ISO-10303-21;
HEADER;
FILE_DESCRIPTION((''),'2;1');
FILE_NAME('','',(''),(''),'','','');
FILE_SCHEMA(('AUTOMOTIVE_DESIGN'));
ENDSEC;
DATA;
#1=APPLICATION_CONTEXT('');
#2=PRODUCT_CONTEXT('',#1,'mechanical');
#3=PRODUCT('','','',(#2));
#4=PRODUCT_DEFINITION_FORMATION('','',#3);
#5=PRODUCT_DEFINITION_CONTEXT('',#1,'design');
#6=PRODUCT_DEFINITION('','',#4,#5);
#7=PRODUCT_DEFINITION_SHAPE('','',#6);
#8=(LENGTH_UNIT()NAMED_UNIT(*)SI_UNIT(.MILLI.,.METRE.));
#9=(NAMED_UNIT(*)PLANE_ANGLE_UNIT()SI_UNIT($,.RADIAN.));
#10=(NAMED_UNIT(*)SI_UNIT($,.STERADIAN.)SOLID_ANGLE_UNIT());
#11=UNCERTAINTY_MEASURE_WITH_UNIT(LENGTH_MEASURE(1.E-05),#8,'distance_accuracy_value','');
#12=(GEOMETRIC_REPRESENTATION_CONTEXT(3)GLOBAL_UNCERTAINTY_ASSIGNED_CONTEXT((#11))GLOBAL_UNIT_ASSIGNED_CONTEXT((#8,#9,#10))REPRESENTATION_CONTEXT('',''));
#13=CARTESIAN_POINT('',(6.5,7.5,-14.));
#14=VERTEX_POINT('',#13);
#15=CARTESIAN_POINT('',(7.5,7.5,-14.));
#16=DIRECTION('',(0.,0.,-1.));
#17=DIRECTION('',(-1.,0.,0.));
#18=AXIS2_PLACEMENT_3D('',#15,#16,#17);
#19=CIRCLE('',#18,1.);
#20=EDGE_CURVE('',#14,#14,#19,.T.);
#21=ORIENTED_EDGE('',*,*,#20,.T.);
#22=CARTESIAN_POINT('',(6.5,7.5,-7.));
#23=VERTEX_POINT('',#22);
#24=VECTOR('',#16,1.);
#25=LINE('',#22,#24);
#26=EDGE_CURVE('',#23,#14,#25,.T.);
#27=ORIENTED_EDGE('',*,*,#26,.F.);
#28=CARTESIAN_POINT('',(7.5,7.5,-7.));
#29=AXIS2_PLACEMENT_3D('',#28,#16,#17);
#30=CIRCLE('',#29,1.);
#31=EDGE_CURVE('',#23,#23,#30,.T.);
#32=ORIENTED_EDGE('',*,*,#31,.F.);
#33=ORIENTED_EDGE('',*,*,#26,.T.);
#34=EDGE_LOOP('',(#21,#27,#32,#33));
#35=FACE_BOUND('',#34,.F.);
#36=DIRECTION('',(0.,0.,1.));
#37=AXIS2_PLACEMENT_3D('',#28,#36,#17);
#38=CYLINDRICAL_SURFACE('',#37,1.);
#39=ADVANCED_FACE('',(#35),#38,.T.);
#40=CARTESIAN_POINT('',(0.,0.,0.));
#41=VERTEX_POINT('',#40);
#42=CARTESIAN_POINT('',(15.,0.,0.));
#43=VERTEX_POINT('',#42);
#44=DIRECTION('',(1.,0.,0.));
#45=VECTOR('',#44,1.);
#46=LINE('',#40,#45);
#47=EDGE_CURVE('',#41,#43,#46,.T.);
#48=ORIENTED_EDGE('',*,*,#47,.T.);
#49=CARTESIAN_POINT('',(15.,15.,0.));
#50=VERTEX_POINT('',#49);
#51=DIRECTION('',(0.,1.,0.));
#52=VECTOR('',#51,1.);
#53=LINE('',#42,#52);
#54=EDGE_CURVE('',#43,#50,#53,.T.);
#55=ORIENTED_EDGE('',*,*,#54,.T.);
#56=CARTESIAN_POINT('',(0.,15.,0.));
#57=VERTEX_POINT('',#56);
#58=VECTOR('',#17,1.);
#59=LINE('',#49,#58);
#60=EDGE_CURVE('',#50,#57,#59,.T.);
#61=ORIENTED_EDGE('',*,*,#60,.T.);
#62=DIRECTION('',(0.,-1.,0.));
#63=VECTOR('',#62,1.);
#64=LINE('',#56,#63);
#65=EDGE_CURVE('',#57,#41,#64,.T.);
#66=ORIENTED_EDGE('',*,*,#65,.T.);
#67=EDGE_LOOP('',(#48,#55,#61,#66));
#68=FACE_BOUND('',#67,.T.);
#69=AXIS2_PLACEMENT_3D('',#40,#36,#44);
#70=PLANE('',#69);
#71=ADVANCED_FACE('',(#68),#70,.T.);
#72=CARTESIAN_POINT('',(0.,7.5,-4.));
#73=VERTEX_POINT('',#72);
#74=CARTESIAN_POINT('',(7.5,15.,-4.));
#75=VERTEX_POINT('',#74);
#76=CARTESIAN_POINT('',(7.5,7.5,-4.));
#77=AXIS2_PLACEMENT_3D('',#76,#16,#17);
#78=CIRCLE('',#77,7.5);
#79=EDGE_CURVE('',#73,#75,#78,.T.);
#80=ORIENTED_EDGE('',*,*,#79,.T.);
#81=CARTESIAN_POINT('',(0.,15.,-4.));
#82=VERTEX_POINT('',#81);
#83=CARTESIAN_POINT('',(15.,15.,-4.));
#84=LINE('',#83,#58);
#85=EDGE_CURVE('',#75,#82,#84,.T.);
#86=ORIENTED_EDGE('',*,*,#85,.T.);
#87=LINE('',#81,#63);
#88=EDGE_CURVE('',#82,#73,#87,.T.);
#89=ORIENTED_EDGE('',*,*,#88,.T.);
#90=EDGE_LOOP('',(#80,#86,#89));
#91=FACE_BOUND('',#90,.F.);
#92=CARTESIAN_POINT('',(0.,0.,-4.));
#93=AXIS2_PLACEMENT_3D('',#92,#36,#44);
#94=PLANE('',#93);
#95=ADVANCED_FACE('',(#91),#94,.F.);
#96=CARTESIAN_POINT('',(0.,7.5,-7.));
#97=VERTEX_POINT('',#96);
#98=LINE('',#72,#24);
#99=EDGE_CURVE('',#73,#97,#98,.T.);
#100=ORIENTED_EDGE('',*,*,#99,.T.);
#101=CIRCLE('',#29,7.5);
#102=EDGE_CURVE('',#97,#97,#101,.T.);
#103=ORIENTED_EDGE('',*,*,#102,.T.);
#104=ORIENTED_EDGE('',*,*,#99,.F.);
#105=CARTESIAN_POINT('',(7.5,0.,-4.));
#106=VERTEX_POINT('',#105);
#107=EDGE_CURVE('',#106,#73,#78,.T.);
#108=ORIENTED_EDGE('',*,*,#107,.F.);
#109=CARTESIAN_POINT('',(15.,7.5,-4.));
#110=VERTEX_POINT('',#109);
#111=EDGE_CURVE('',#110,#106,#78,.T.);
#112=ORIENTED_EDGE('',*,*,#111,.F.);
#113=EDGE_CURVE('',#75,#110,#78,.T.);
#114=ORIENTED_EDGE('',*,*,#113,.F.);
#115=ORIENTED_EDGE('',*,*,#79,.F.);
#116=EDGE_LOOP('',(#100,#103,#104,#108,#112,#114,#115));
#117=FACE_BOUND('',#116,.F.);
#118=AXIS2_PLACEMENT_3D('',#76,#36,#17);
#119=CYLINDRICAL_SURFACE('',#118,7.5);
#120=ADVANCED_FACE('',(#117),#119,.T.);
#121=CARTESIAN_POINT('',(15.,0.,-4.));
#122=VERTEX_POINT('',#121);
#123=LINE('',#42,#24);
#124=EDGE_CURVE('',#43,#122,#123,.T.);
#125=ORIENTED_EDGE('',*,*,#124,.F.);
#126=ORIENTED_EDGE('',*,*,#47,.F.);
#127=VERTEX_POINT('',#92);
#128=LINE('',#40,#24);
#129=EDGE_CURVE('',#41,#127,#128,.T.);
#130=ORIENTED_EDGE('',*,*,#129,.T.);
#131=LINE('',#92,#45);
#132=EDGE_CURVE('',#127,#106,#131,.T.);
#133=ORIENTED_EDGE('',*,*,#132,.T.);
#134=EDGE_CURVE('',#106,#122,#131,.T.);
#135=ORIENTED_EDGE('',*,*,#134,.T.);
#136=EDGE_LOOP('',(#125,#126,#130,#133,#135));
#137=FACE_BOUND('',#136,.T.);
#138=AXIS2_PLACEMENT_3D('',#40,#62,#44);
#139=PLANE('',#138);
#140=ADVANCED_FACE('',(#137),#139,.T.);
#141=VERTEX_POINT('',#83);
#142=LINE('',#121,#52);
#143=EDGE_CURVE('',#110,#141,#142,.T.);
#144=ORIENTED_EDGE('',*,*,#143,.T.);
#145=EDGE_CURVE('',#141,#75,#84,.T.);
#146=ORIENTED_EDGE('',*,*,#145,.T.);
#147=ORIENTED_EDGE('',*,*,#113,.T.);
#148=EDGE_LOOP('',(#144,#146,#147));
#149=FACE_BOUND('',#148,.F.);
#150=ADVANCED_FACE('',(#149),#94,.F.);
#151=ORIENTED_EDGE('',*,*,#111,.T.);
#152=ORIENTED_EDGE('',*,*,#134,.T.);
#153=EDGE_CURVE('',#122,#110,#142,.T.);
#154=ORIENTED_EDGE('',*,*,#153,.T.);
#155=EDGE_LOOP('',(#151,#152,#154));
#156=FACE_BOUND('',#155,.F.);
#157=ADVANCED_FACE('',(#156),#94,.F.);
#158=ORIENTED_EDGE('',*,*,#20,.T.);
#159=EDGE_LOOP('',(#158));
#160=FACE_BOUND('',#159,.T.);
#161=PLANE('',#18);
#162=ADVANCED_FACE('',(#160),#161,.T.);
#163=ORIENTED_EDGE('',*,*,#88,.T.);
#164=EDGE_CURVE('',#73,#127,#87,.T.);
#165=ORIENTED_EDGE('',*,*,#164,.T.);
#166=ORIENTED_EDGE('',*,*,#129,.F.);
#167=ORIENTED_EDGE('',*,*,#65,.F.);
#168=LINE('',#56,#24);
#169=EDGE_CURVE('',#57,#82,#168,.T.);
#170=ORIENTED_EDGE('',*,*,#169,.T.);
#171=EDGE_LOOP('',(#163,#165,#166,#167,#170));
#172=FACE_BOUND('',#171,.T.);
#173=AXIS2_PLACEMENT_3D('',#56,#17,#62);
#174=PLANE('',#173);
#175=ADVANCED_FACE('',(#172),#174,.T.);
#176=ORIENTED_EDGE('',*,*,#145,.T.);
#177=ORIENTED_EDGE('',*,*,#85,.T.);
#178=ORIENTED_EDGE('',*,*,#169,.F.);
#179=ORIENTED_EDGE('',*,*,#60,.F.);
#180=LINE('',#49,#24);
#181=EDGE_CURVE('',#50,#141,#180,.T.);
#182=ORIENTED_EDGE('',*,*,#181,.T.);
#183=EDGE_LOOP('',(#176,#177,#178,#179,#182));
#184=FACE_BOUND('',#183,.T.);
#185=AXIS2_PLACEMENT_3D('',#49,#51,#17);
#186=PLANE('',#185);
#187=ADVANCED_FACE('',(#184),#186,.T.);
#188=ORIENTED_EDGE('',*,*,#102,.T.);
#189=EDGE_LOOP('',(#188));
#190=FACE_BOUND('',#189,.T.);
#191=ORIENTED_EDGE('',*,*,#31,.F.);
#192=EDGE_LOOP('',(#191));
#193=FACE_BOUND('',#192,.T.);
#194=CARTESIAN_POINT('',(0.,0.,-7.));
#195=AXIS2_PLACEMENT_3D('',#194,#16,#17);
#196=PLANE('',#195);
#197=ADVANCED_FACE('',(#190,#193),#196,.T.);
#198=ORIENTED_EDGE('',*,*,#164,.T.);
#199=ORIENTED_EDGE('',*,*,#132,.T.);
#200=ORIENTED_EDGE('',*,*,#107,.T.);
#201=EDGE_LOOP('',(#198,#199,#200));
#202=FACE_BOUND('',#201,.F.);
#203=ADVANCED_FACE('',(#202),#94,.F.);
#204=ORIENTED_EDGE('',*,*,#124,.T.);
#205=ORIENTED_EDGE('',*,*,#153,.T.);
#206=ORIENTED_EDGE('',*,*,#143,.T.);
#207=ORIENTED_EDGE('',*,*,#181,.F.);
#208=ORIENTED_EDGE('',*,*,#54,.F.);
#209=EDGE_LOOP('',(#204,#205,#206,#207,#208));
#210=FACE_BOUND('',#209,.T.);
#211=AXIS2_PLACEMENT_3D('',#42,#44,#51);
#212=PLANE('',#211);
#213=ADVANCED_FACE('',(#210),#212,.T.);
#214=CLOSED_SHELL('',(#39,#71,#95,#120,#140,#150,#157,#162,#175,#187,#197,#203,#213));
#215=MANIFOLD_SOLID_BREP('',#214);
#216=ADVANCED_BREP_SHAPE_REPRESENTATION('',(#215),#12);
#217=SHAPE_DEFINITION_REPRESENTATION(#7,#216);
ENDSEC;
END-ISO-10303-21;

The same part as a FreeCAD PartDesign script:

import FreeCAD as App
import Part
import Sketcher
from FreeCAD import Vector

doc = App.newDocument("Part")
body = doc.addObject("PartDesign::Body", "Body")

# Sketch on XY plane
sketch1 = body.newObject("Sketcher::SketchObject", "Sketch")
sketch1.AttachmentSupport = (doc.getObject("XY_Plane"), [""])
sketch1.MapMode = "FlatFace"
sketch1.addGeometry([
    Part.LineSegment(Vector(0, 15, 0), Vector(0, 0, 0)),
    Part.LineSegment(Vector(0, 0, 0), Vector(15, 0, 0)),
    Part.LineSegment(Vector(15, 0, 0), Vector(15, 15, 0)),
    Part.LineSegment(Vector(15, 15, 0), Vector(0, 15, 0)),
], False)
sketch1.addConstraint([
    Sketcher.Constraint("Coincident", 0, 2, 1, 1),
    Sketcher.Constraint("Coincident", 1, 2, 2, 1),
    Sketcher.Constraint("Coincident", 2, 2, 3, 1),
    Sketcher.Constraint("Coincident", 3, 2, 0, 1),
    Sketcher.Constraint("Vertical", 0),
    Sketcher.Constraint("Horizontal", 1),
    Sketcher.Constraint("Vertical", 2),
    Sketcher.Constraint("Horizontal", 3),
    Sketcher.Constraint("Coincident", 0, 2, -1, 1),
    Sketcher.Constraint("Equal", 3, 0),
    Sketcher.Constraint("DistanceX", 1, 1, 1, 2, 15.0),
])
pad1 = body.newObject("PartDesign::Pad", "Pad")
pad1.Profile = sketch1
pad1.Length = 4
pad1.Reversed = True

# Sketch on XY plane
sketch2 = body.newObject("Sketcher::SketchObject", "Sketch001")
sketch2.AttachmentSupport = (doc.getObject("XY_Plane"), [""])
sketch2.MapMode = "FlatFace"
sketch2.AttachmentOffset = App.Placement(Vector(0, 0, -4), App.Rotation())
sketch2.addGeometry(Part.Circle(Vector(8, 8, 0), Vector(0, 0, 1), 8), False)
sketch2.addConstraint([
    Sketcher.Constraint("Diameter", 0, 15.0),
    Sketcher.Constraint("DistanceX", -1, 1, 0, 3, 7.5),
    Sketcher.Constraint("DistanceY", -1, 1, 0, 3, 7.5),
])
pad2 = body.newObject("PartDesign::Pad", "Pad001")
pad2.Profile = sketch2
pad2.Length = 3
pad2.Reversed = True

# Sketch on XY plane
sketch3 = body.newObject("Sketcher::SketchObject", "Sketch002")
sketch3.AttachmentSupport = (doc.getObject("XY_Plane"), [""])
sketch3.MapMode = "FlatFace"
sketch3.AttachmentOffset = App.Placement(Vector(0, 0, -7), App.Rotation())
sketch3.addGeometry(Part.Circle(Vector(7.5, 7.5, 0), Vector(0, 0, 1), 1), False)
sketch3.addConstraint([
    Sketcher.Constraint("Diameter", 0, 2.0),
    Sketcher.Constraint("DistanceX", -1, 1, 0, 3, 7.5),
    Sketcher.Constraint("DistanceY", -1, 1, 0, 3, 7.5),
])
pad3 = body.newObject("PartDesign::Pad", "Pad002")
pad3.Profile = sketch3
pad3.Length = 7
pad3.Reversed = True

doc.recompute()
